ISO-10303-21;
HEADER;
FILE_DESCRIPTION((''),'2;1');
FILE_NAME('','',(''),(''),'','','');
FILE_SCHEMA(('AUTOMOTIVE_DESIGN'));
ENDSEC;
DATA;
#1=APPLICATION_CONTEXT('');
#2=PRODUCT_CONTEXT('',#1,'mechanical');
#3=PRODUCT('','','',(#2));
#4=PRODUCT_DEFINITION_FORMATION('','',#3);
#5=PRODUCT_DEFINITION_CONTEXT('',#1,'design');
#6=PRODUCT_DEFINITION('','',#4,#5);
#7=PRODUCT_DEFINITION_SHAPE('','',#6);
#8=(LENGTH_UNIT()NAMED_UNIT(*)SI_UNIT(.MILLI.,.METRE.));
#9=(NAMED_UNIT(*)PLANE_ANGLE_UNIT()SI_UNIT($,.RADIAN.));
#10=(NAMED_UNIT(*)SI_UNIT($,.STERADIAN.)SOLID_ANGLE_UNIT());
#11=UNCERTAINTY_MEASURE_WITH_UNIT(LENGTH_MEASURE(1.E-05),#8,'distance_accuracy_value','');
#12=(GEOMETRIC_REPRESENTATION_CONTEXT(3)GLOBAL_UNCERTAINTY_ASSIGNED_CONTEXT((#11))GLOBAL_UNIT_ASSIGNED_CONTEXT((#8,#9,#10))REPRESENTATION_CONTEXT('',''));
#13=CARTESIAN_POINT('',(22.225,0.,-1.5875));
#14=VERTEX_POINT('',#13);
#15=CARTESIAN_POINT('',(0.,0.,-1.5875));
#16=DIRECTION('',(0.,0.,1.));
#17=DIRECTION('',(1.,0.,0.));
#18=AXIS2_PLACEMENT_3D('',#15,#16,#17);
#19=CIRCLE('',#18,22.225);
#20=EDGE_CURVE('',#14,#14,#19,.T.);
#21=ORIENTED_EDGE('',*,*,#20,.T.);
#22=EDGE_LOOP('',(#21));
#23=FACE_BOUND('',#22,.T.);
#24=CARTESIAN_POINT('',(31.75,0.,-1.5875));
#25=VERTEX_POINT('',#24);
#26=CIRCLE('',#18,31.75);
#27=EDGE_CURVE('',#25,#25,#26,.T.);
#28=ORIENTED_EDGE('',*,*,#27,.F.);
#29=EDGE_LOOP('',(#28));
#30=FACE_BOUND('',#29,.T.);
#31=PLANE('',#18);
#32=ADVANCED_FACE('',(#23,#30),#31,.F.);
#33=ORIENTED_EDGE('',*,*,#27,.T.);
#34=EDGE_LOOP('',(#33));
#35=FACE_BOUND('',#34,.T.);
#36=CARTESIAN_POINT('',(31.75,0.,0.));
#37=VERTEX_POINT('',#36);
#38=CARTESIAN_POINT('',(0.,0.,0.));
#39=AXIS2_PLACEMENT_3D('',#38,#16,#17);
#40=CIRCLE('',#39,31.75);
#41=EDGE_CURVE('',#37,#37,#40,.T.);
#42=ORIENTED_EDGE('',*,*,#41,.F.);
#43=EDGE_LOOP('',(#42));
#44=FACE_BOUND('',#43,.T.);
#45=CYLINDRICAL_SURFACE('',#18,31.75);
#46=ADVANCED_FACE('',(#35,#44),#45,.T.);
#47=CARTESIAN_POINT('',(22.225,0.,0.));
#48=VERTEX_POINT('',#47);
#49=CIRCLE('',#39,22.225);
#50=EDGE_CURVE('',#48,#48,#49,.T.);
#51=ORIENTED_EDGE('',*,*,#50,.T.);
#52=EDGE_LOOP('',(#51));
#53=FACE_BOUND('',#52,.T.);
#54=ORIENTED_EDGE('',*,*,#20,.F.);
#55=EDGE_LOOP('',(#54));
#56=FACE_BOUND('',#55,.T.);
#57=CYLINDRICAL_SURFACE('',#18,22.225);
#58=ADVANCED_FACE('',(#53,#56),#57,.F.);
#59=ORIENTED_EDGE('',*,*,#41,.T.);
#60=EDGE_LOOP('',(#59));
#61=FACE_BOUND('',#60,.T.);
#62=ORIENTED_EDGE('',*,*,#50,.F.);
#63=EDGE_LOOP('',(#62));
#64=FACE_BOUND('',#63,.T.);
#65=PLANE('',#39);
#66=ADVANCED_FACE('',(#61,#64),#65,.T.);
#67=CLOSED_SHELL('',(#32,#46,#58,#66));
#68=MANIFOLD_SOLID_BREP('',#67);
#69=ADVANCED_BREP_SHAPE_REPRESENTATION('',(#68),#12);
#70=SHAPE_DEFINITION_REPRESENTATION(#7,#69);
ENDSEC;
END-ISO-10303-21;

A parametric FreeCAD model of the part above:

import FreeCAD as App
import Part
import Sketcher
from FreeCAD import Vector
Q = App.Units.Quantity

doc = App.newDocument("Part")
body = doc.addObject("PartDesign::Body", "Body")

# Sketch on XY plane
sketch1 = body.newObject("Sketcher::SketchObject", "Sketch")
sketch1.AttachmentSupport = (doc.getObject("XY_Plane"), [""])
sketch1.MapMode = "FlatFace"
sketch1.addGeometry([
    Part.Circle(Vector(0, 0, 0), Vector(0, 0, 1), 32),
    Part.Circle(Vector(0, 0, 0), Vector(0, 0, 1), 22),
], False)
sketch1.addConstraint([
    Sketcher.Constraint("Coincident", 0, 3, -1, 1),
    Sketcher.Constraint("Coincident", 1, 3, -1, 1),
    Sketcher.Constraint("Diameter", 0, Q("2.5 in")),
    Sketcher.Constraint("Diameter", 1, Q("1.75 in")),
])
pad1 = body.newObject("PartDesign::Pad", "Pad")
pad1.Profile = sketch1
pad1.Length = Q("0.0625 in")
pad1.Reversed = True

doc.recompute()
